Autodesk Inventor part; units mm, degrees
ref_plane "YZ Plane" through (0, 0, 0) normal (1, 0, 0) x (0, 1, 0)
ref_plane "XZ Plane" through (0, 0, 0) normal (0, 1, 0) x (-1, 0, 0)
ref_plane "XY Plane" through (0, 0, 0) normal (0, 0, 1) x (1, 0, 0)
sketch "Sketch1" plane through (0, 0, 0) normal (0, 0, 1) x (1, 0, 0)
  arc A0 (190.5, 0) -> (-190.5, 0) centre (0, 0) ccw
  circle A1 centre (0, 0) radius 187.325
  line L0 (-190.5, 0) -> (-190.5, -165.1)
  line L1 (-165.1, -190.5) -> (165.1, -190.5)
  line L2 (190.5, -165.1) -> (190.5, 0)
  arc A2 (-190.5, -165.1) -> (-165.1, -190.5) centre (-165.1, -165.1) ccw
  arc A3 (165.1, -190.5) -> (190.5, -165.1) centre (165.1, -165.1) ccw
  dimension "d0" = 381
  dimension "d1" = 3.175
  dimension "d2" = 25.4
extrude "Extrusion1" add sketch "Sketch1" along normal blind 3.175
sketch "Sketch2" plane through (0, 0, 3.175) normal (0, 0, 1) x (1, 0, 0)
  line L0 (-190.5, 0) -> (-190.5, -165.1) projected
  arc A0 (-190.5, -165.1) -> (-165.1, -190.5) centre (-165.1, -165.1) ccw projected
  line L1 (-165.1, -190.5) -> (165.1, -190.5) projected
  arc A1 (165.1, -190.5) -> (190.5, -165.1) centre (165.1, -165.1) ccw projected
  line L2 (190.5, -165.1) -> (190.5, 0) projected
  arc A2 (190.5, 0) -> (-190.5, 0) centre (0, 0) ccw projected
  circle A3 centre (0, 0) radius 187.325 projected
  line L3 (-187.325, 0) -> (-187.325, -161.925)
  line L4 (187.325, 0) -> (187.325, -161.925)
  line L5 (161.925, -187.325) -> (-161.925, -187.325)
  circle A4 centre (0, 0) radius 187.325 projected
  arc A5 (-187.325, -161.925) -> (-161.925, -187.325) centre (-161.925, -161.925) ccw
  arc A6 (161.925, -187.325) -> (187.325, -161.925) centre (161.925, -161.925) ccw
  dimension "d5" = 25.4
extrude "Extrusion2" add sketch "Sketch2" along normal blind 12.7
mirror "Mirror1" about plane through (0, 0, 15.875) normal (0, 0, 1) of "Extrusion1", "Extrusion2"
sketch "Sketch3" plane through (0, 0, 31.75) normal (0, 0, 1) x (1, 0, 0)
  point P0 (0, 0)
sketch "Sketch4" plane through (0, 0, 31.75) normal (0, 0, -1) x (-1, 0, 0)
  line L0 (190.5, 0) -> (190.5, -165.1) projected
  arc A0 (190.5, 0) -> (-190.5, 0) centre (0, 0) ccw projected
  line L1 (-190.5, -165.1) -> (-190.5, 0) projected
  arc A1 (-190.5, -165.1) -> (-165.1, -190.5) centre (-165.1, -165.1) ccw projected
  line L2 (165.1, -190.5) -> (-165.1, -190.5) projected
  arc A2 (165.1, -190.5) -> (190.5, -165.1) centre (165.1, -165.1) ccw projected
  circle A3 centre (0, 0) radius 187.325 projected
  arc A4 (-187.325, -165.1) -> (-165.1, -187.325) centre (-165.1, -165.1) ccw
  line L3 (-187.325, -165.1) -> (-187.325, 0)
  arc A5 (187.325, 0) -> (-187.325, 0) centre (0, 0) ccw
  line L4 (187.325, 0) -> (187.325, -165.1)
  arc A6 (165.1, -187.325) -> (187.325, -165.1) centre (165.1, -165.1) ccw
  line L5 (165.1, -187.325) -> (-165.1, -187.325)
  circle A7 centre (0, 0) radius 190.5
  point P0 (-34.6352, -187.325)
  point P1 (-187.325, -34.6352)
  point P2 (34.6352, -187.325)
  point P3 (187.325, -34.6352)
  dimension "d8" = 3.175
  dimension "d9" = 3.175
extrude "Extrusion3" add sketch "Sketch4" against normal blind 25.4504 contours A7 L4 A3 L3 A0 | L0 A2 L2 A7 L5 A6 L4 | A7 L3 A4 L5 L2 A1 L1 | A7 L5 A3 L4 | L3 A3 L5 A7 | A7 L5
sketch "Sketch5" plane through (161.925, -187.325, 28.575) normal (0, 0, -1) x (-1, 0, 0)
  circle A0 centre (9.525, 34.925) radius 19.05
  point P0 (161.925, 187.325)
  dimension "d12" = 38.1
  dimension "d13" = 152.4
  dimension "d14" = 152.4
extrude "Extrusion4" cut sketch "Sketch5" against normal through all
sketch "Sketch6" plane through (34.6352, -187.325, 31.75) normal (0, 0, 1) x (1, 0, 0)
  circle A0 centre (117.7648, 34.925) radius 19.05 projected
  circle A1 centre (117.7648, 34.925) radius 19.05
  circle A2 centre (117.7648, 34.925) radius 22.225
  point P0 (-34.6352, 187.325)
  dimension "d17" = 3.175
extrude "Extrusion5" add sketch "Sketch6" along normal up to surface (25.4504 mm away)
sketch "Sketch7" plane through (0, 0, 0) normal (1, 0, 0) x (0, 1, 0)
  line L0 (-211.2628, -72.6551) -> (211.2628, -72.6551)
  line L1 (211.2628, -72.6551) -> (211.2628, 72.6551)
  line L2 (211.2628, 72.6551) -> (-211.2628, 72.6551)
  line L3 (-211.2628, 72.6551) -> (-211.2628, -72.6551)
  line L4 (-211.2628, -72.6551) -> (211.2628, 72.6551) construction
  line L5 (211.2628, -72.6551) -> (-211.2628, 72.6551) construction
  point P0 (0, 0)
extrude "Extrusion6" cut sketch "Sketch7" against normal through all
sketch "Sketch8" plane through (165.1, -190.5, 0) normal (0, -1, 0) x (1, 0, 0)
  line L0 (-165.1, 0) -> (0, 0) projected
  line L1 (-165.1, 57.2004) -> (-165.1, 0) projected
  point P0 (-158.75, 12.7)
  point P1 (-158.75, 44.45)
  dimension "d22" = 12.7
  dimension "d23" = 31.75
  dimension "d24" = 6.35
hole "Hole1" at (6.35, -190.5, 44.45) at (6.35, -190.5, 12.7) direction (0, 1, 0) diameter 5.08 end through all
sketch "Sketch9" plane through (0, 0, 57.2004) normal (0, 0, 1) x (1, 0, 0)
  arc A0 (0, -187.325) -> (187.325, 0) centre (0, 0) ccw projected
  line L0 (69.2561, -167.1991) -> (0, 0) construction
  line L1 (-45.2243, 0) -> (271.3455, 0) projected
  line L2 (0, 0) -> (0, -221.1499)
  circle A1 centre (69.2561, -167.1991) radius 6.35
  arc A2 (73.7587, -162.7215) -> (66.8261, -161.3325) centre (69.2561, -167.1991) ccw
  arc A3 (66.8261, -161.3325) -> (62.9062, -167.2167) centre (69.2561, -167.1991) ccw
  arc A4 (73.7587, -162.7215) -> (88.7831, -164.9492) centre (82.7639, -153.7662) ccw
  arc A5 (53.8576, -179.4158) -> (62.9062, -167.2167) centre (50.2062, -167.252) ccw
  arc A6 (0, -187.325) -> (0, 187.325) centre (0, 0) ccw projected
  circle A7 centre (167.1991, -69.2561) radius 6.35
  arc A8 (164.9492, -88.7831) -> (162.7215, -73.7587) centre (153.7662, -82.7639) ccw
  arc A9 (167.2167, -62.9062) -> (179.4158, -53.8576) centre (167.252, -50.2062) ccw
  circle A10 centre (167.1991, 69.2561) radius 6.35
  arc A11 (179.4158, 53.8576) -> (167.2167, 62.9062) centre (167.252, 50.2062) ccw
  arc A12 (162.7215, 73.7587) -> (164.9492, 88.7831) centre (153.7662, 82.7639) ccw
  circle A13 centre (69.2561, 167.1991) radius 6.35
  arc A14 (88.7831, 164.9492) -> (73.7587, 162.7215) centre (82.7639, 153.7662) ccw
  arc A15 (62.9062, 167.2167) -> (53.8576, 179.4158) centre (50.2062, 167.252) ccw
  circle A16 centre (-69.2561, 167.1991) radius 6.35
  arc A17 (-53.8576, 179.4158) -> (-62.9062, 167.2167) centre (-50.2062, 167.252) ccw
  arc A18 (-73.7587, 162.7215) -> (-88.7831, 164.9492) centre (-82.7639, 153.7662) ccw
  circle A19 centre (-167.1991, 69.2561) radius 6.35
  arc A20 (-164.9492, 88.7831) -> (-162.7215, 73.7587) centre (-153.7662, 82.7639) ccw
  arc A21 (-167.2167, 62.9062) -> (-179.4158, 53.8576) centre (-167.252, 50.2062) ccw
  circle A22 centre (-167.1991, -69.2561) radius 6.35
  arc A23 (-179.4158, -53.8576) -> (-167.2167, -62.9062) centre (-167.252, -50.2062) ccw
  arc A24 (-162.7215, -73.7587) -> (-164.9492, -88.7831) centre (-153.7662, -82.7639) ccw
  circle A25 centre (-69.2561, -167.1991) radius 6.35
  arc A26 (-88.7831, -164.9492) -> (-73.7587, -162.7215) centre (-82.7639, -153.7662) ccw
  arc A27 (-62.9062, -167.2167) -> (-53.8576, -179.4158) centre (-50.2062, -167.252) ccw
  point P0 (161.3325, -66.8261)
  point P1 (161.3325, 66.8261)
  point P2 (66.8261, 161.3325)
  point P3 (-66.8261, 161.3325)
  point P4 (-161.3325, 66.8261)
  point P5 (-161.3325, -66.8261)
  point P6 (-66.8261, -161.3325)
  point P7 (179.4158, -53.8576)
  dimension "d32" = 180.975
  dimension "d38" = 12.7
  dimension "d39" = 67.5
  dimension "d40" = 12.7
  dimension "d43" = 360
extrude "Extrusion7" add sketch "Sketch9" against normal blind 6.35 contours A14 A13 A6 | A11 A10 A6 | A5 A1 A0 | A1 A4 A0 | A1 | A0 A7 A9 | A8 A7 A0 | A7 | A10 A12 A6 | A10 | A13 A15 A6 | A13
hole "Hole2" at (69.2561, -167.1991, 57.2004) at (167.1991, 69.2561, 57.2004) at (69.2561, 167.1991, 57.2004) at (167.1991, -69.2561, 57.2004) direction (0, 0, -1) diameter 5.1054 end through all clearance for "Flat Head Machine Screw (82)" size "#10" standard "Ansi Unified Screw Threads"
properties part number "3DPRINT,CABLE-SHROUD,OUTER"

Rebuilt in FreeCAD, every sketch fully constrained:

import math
import FreeCAD as App
import Part
import Sketcher

V = App.Vector
Q = App.Units.Quantity

doc = App.newDocument("Part")
body = doc.addObject("PartDesign::Body", "Body")

# Sketch on XY plane
sketch1 = body.newObject("Sketcher::SketchObject", "Sketch")
sketch1.AttachmentSupport = (doc.getObject("XY_Plane"), [""])
sketch1.MapMode = "FlatFace"
sketch1.addGeometry(Part.LineSegment(V(190, -165, 0), V(190, 0, 0)), False)
sketch1.addGeometry(Part.ArcOfCircle(Part.Circle(V(0, 0, 0), V(0, 0, 1), 190), math.radians(0), math.radians(180)), False)
sketch1.addGeometry(Part.LineSegment(V(-190, 0, 0), V(-190, -165, 0)), False)
sketch1.addGeometry(Part.ArcOfCircle(Part.Circle(V(-165, -165, 0), V(0, 0, 1), 25), math.radians(180), math.radians(270)), False)
sketch1.addGeometry(Part.LineSegment(V(-165, -190, 0), V(165, -190, 0)), False)
sketch1.addGeometry(Part.ArcOfCircle(Part.Circle(V(165, -165, 0), V(0, 0, 1), 25), math.radians(-90), math.radians(0)), False)
sketch1.addGeometry(Part.Circle(V(0, 0, 0), V(0, 0, 1), 187), False)
sketch1.addConstraint(Sketcher.Constraint("Tangent", 0, 2, 1, 1))
sketch1.addConstraint(Sketcher.Constraint("Tangent", 1, 2, 2, 1))
sketch1.addConstraint(Sketcher.Constraint("Tangent", 2, 2, 3, 1))
sketch1.addConstraint(Sketcher.Constraint("Tangent", 3, 2, 4, 1))
sketch1.addConstraint(Sketcher.Constraint("Tangent", 4, 2, 5, 1))
sketch1.addConstraint(Sketcher.Constraint("Tangent", 5, 2, 0, 1))
sketch1.addConstraint(Sketcher.Constraint("Vertical", 0))
sketch1.addConstraint(Sketcher.Constraint("Vertical", 2))
sketch1.addConstraint(Sketcher.Constraint("Horizontal", 4))
sketch1.addConstraint(Sketcher.Constraint("Coincident", 1, 3, -1, 1))
sketch1.addConstraint(Sketcher.Constraint("Coincident", 6, 3, -1, 1))
sketch1.addConstraint(Sketcher.Constraint("Equal", 3, 5))
sketch1.addConstraint(Sketcher.Constraint("Radius", 3, Q("1 in")))
sketch1.addConstraint(Sketcher.Constraint("Radius", 1, Q("7.5 in")))
sketch1.addConstraint(Sketcher.Constraint("Diameter", 6, Q("14.75 in")))
sketch1.addConstraint(Sketcher.Constraint("DistanceY", 0, 1, 0, 2, Q("6.5 in")))
pad1 = body.newObject("PartDesign::Pad", "Pad")
pad1.Profile = sketch1
pad1.Length = Q("0.125 in")

# Sketch on XY plane
sketch2 = body.newObject("Sketcher::SketchObject", "Sketch001")
sketch2.AttachmentSupport = (doc.getObject("XY_Plane"), [""])
sketch2.MapMode = "FlatFace"
sketch2.AttachmentOffset = App.Placement(V(0, 0, 0.125 * 25.4), App.Rotation())
sketch2.addGeometry(Part.ArcOfCircle(Part.Circle(V(0, 0, 0), V(0, 0, 1), 190), math.radians(0), math.radians(180)), False)
sketch2.addGeometry(Part.LineSegment(V(-190, 0, 0), V(-190, -165, 0)), False)
sketch2.addGeometry(Part.ArcOfCircle(Part.Circle(V(-165, -165, 0), V(0, 0, 1), 25), math.radians(180), math.radians(270)), False)
sketch2.addGeometry(Part.LineSegment(V(-165, -190, 0), V(165, -190, 0)), False)
sketch2.addGeometry(Part.ArcOfCircle(Part.Circle(V(165, -165, 0), V(0, 0, 1), 25), math.radians(-90), math.radians(0)), False)
sketch2.addGeometry(Part.LineSegment(V(190, -165, 0), V(190, 0, 0)), False)
sketch2.addGeometry(Part.ArcOfCircle(Part.Circle(V(0, 0, 0), V(0, 0, 1), 187), math.radians(0), math.radians(180)), False)
sketch2.addGeometry(Part.LineSegment(V(187, 0, 0), V(187, -162, 0)), False)
sketch2.addGeometry(Part.ArcOfCircle(Part.Circle(V(162, -162, 0), V(0, 0, 1), 25), math.radians(-90), math.radians(0)), False)
sketch2.addGeometry(Part.LineSegment(V(162, -187, 0), V(-162, -187, 0)), False)
sketch2.addGeometry(Part.ArcOfCircle(Part.Circle(V(-162, -162, 0), V(0, 0, 1), 25), math.radians(180), math.radians(270)), False)
sketch2.addGeometry(Part.LineSegment(V(-187, -162, 0), V(-187, 0, 0)), False)
sketch2.addConstraint(Sketcher.Constraint("Tangent", 0, 2, 1, 1))
sketch2.addConstraint(Sketcher.Constraint("Tangent", 1, 2, 2, 1))
sketch2.addConstraint(Sketcher.Constraint("Tangent", 2, 2, 3, 1))
sketch2.addConstraint(Sketcher.Constraint("Tangent", 3, 2, 4, 1))
sketch2.addConstraint(Sketcher.Constraint("Tangent", 4, 2, 5, 1))
sketch2.addConstraint(Sketcher.Constraint("Tangent", 5, 2, 0, 1))
sketch2.addConstraint(Sketcher.Constraint("Tangent", 6, 1, 7, 1))
sketch2.addConstraint(Sketcher.Constraint("Tangent", 7, 2, 8, 2))
sketch2.addConstraint(Sketcher.Constraint("Tangent", 8, 1, 9, 1))
sketch2.addConstraint(Sketcher.Constraint("Tangent", 9, 2, 10, 2))
sketch2.addConstraint(Sketcher.Constraint("Tangent", 10, 1, 11, 1))
sketch2.addConstraint(Sketcher.Constraint("Tangent", 11, 2, 6, 2))
sketch2.addConstraint(Sketcher.Constraint("Vertical", 1))
sketch2.addConstraint(Sketcher.Constraint("Horizontal", 3))
sketch2.addConstraint(Sketcher.Constraint("Vertical", 5))
sketch2.addConstraint(Sketcher.Constraint("Vertical", 7))
sketch2.addConstraint(Sketcher.Constraint("Horizontal", 9))
sketch2.addConstraint(Sketcher.Constraint("Vertical", 11))
sketch2.addConstraint(Sketcher.Constraint("Coincident", 0, 3, -1, 1))
sketch2.addConstraint(Sketcher.Constraint("Coincident", 6, 3, -1, 1))
sketch2.addConstraint(Sketcher.Constraint("Equal", 2, 4))
sketch2.addConstraint(Sketcher.Constraint("Equal", 4, 8))
sketch2.addConstraint(Sketcher.Constraint("Equal", 8, 10))
sketch2.addConstraint(Sketcher.Constraint("Radius", 2, Q("1 in")))
sketch2.addConstraint(Sketcher.Constraint("Radius", 0, Q("7.5 in")))
sketch2.addConstraint(Sketcher.Constraint("DistanceY", 1, 2, 1, 1, Q("6.5 in")))
sketch2.addConstraint(Sketcher.Constraint("Radius", 6, Q("7.375 in")))
sketch2.addConstraint(Sketcher.Constraint("DistanceY", 7, 2, 7, 1, Q("6.375 in")))
pad2 = body.newObject("PartDesign::Pad", "Pad001")
pad2.Profile = sketch2
pad2.Length = Q("0.5 in")
doc.recompute()

datumplane = body.newObject("PartDesign::Plane", "DatumPlane")
datumplane.AttachmentSupport = (doc.getObject("XY_Plane"), [""])
datumplane.MapMode = "FlatFace"
datumplane.AttachmentOffset = App.Placement(V(0, 0, 0.625 * 25.4), App.Rotation())
mirrored = body.newObject("PartDesign::Mirrored", "Mirrored")
mirrored.Originals = [pad1, pad2]
mirrored.MirrorPlane = (datumplane, [""])
body.Tip = mirrored

# Sketch on XY plane
sketch3 = body.newObject("Sketcher::SketchObject", "Sketch002")
sketch3.AttachmentSupport = (doc.getObject("XY_Plane"), [""])
sketch3.MapMode = "FlatFace"
sketch3.AttachmentOffset = App.Placement(V(0, 0, 1.25 * 25.4), App.Rotation())
sketch3.addGeometry(Part.ArcOfCircle(Part.Circle(V(0, 0, 0), V(0, 0, 1), 190), math.radians(0), math.radians(180)), False)
sketch3.addGeometry(Part.LineSegment(V(190, 0, 0), V(190, -165, 0)), False)
sketch3.addGeometry(Part.ArcOfCircle(Part.Circle(V(165, -165, 0), V(0, 0, 1), 25), math.radians(-90), math.radians(0)), False)
sketch3.addGeometry(Part.LineSegment(V(165, -190, 0), V(-165, -190, 0)), False)
sketch3.addGeometry(Part.ArcOfCircle(Part.Circle(V(-165, -165, 0), V(0, 0, 1), 25), math.radians(180), math.radians(270)), False)
sketch3.addGeometry(Part.LineSegment(V(-190, -165, 0), V(-190, 0, 0)), False)
sketch3.addGeometry(Part.Circle(V(0, 0, 0), V(0, 0, 1), 187), False)
sketch3.addGeometry(Part.LineSegment(V(-165, -187, 0), V(-35, -187, 0)), False)
sketch3.addGeometry(Part.ArcOfCircle(Part.Circle(V(0, 0, 0), V(0, 0, 1), 190), math.radians(-170), math.radians(-100)), False)
sketch3.addGeometry(Part.LineSegment(V(-187, -35, 0), V(-187, -165, 0)), False)
sketch3.addGeometry(Part.ArcOfCircle(Part.Circle(V(-165, -165, 0), V(0, 0, 1), 22), math.radians(180), math.radians(270)), False)
sketch3.addGeometry(Part.ArcOfCircle(Part.Circle(V(0, 0, 0), V(0, 0, 1), 190), math.radians(-80), math.radians(-10)), False)
sketch3.addGeometry(Part.LineSegment(V(35, -187, 0), V(165, -187, 0)), False)
sketch3.addGeometry(Part.ArcOfCircle(Part.Circle(V(165, -165, 0), V(0, 0, 1), 22), math.radians(-90), math.radians(0)), False)
sketch3.addGeometry(Part.LineSegment(V(187, -165, 0), V(187, -35, 0)), False)
sketch3.addConstraint(Sketcher.Constraint("Tangent", 0, 1, 1, 1))
sketch3.addConstraint(Sketcher.Constraint("Tangent", 1, 2, 2, 2))
sketch3.addConstraint(Sketcher.Constraint("Tangent", 2, 1, 3, 1))
sketch3.addConstraint(Sketcher.Constraint("Tangent", 3, 2, 4, 2))
sketch3.addConstraint(Sketcher.Constraint("Tangent", 4, 1, 5, 1))
sketch3.addConstraint(Sketcher.Constraint("Tangent", 5, 2, 0, 2))
sketch3.addConstraint(Sketcher.Constraint("Coincident", 7, 2, 8, 2))
sketch3.addConstraint(Sketcher.Constraint("Coincident", 8, 1, 9, 1))
sketch3.addConstraint(Sketcher.Constraint("Tangent", 9, 2, 10, 1))
sketch3.addConstraint(Sketcher.Constraint("Tangent", 10, 2, 7, 1))
sketch3.addConstraint(Sketcher.Constraint("Coincident", 11, 1, 12, 1))
sketch3.addConstraint(Sketcher.Constraint("Tangent", 12, 2, 13, 1))
sketch3.addConstraint(Sketcher.Constraint("Tangent", 13, 2, 14, 1))
sketch3.addConstraint(Sketcher.Constraint("Coincident", 14, 2, 11, 2))
sketch3.addConstraint(Sketcher.Constraint("Vertical", 1))
sketch3.addConstraint(Sketcher.Constraint("Horizontal", 3))
sketch3.addConstraint(Sketcher.Constraint("Vertical", 5))
sketch3.addConstraint(Sketcher.Constraint("Horizontal", 7))
sketch3.addConstraint(Sketcher.Constraint("Vertical", 9))
sketch3.addConstraint(Sketcher.Constraint("Horizontal", 12))
sketch3.addConstraint(Sketcher.Constraint("Vertical", 14))
sketch3.addConstraint(Sketcher.Constraint("Coincident", 0, 3, -1, 1))
sketch3.addConstraint(Sketcher.Constraint("Coincident", 6, 3, -1, 1))
sketch3.addConstraint(Sketcher.Constraint("Coincident", 8, 3, -1, 1))
sketch3.addConstraint(Sketcher.Constraint("Coincident", 11, 3, -1, 1))
sketch3.addConstraint(Sketcher.Constraint("Coincident", 10, 3, 4, 3))
sketch3.addConstraint(Sketcher.Constraint("Coincident", 13, 3, 2, 3))
sketch3.addConstraint(Sketcher.Constraint("Equal", 2, 4))
sketch3.addConstraint(Sketcher.Constraint("Equal", 0, 8))
sketch3.addConstraint(Sketcher.Constraint("Equal", 8, 11))
sketch3.addConstraint(Sketcher.Constraint("Equal", 10, 13))
sketch3.addConstraint(Sketcher.Constraint("Equal", 12, 9))
sketch3.addConstraint(Sketcher.Constraint("Radius", 2, Q("1 in")))
sketch3.addConstraint(Sketcher.Constraint("Radius", 0, Q("7.5 in")))
sketch3.addConstraint(Sketcher.Constraint("Diameter", 6, Q("14.75 in")))
sketch3.addConstraint(Sketcher.Constraint("Radius", 10, Q("0.875 in")))
pad3 = body.newObject("PartDesign::Pad", "Pad002")
pad3.Profile = sketch3
pad3.Length = 25.4504

# Sketch on XY plane
sketch4 = body.newObject("Sketcher::SketchObject", "Sketch003")
sketch4.AttachmentSupport = (doc.getObject("XY_Plane"), [""])
sketch4.MapMode = "FlatFace"
sketch4.AttachmentOffset = App.Placement(V(0, 0, 1.125 * 25.4), App.Rotation())
sketch4.addGeometry(Part.Circle(V(152, -152, 0), V(0, 0, 1), 19), False)
sketch4.addConstraint(Sketcher.Constraint("Diameter", 0, Q("1.5 in")))
sketch4.addConstraint(Sketcher.Constraint("DistanceX", -1, 1, 0, 3, Q("6 in")))
sketch4.addConstraint(Sketcher.Constraint("DistanceY", 0, 3, -1, 1, Q("6 in")))
pocket1 = body.newObject("PartDesign::Pocket", "Pocket")
pocket1.Profile = sketch4
pocket1.Type = "ThroughAll"
pocket1.Reversed = True

# Sketch on XY plane
sketch5 = body.newObject("Sketcher::SketchObject", "Sketch004")
sketch5.AttachmentSupport = (doc.getObject("XY_Plane"), [""])
sketch5.MapMode = "FlatFace"
sketch5.AttachmentOffset = App.Placement(V(0, 0, 1.25 * 25.4), App.Rotation())
sketch5.addGeometry(Part.Circle(V(152, -152, 0), V(0, 0, 1), 22), False)
sketch5.addGeometry(Part.Circle(V(152, -152, 0), V(0, 0, 1), 19), False)
sketch5.addConstraint(Sketcher.Constraint("Coincident", 1, 3, 0, 3))
sketch5.addConstraint(Sketcher.Constraint("Diameter", 1, Q("1.5 in")))
sketch5.addConstraint(Sketcher.Constraint("Diameter", 0, Q("1.75 in")))
sketch5.addConstraint(Sketcher.Constraint("DistanceX", -1, 1, 0, 3, Q("6 in")))
sketch5.addConstraint(Sketcher.Constraint("DistanceY", 0, 3, -1, 1, Q("6 in")))
pad4 = body.newObject("PartDesign::Pad", "Pad003")
pad4.Profile = sketch5
pad4.Length = 25.4504

# Sketch on YZ plane
sketch6 = body.newObject("Sketcher::SketchObject", "Sketch005")
sketch6.AttachmentSupport = (doc.getObject("YZ_Plane"), [""])
sketch6.MapMode = "FlatFace"
sketch6.addGeometry(Part.LineSegment(V(-211, 73, 0), V(-211, -73, 0)), False)
sketch6.addGeometry(Part.LineSegment(V(-211, -73, 0), V(211, -73, 0)), False)
sketch6.addGeometry(Part.LineSegment(V(211, -73, 0), V(211, 73, 0)), False)
sketch6.addGeometry(Part.LineSegment(V(211, 73, 0), V(-211, 73, 0)), False)
sketch6.addConstraint(Sketcher.Constraint("Coincident", 0, 2, 1, 1))
sketch6.addConstraint(Sketcher.Constraint("Coincident", 1, 2, 2, 1))
sketch6.addConstraint(Sketcher.Constraint("Coincident", 2, 2, 3, 1))
sketch6.addConstraint(Sketcher.Constraint("Coincident", 3, 2, 0, 1))
sketch6.addConstraint(Sketcher.Constraint("Vertical", 0))
sketch6.addConstraint(Sketcher.Constraint("Horizontal", 1))
sketch6.addConstraint(Sketcher.Constraint("Vertical", 2))
sketch6.addConstraint(Sketcher.Constraint("Horizontal", 3))
sketch6.addConstraint(Sketcher.Constraint("Symmetric", 0, 2, 2, 2, -1, 1))
sketch6.addConstraint(Sketcher.Constraint("DistanceX", 1, 1, 1, 2, Q("422.5256 mm")))
sketch6.addConstraint(Sketcher.Constraint("DistanceY", 0, 2, 0, 1, Q("145.3102 mm")))
pocket2 = body.newObject("PartDesign::Pocket", "Pocket001")
pocket2.Profile = sketch6
pocket2.Type = "ThroughAll"

# Sketch on XZ plane
sketch7 = body.newObject("Sketcher::SketchObject", "Sketch006")
sketch7.AttachmentSupport = (doc.getObject("XZ_Plane"), [""])
sketch7.MapMode = "FlatFace"
sketch7.AttachmentOffset = App.Placement(V(0, 0, 7.5 * 25.4), App.Rotation())
sketch7.addGeometry(Part.Circle(V(6.3, 44.5, 0), V(0, 0, 1), 2.5), False)
sketch7.addGeometry(Part.Circle(V(6.3, 12.7, 0), V(0, 0, 1), 2.5), False)
sketch7.addConstraint(Sketcher.Constraint("Equal", 0, 1))
sketch7.addConstraint(Sketcher.Constraint("Vertical", 0, 3, 1, 3))
sketch7.addConstraint(Sketcher.Constraint("Diameter", 0, Q("0.2 in")))
sketch7.addConstraint(Sketcher.Constraint("DistanceY", -1, 1, 1, 3, Q("0.5 in")))
sketch7.addConstraint(Sketcher.Constraint("DistanceX", -1, 1, 0, 3, Q("0.25 in")))
sketch7.addConstraint(Sketcher.Constraint("DistanceY", -1, 1, 0, 3, Q("1.75 in")))
doc.recompute()
hole = body.newObject("PartDesign::Hole", "Hole")
hole.Profile = sketch7
hole.ThreadType = "None"
hole.Diameter = Q("0.2 in")
hole.DepthType = "ThroughAll"

# Sketch on XY plane
sketch8 = body.newObject("Sketcher::SketchObject", "Sketch007")
sketch8.AttachmentSupport = (doc.getObject("XY_Plane"), [""])
sketch8.MapMode = "FlatFace"
sketch8.AttachmentOffset = App.Placement(V(0, 0, 57.2004), App.Rotation())
sketch8.addGeometry(Part.ArcOfCircle(Part.Circle(V(83, 154, 0), V(0, 0, 1), 13), math.radians(62), math.radians(135)), False)
sketch8.addGeometry(Part.ArcOfCircle(Part.Circle(V(0, 0, 0), V(0, 0, 1), 187), math.radians(61.71), math.radians(73.29)), False)
sketch8.addGeometry(Part.ArcOfCircle(Part.Circle(V(50, 167, 0), V(0, 0, 1), 13), math.radians(0), math.radians(73)), False)
sketch8.addGeometry(Part.ArcOfCircle(Part.Circle(V(69, 167, 0), V(0, 0, 1), 6), math.radians(180), math.radians(315)), False)
sketch8.addGeometry(Part.ArcOfCircle(Part.Circle(V(167, 50, 0), V(0, 0, 1), 13), math.radians(17), math.radians(90)), False)
sketch8.addGeometry(Part.ArcOfCircle(Part.Circle(V(0, 0, 0), V(0, 0, 1), 187), math.radians(16.71), math.radians(28.29)), False)
sketch8.addGeometry(Part.ArcOfCircle(Part.Circle(V(154, 83, 0), V(0, 0, 1), 13), math.radians(-45), math.radians(28)), False)
sketch8.addGeometry(Part.ArcOfCircle(Part.Circle(V(167, 69, 0), V(0, 0, 1), 6), math.radians(135), math.radians(270)), False)
sketch8.addGeometry(Part.ArcOfCircle(Part.Circle(V(50, -167, 0), V(0, 0, 1), 13), math.radians(-73), math.radians(0)), False)
sketch8.addGeometry(Part.ArcOfCircle(Part.Circle(V(0, 0, 0), V(0, 0, 1), 187), math.radians(-73.29), math.radians(-61.71)), False)
sketch8.addGeometry(Part.ArcOfCircle(Part.Circle(V(83, -154, 0), V(0, 0, 1), 13), math.radians(-135), math.radians(-62)), False)
sketch8.addGeometry(Part.ArcOfCircle(Part.Circle(V(69, -167, 0), V(0, 0, 1), 6), math.radians(45), math.radians(180)), False)
sketch8.addGeometry(Part.ArcOfCircle(Part.Circle(V(167, -50, 0), V(0, 0, 1), 13), math.radians(-90), math.radians(-17)), False)
sketch8.addGeometry(Part.ArcOfCircle(Part.Circle(V(167, -69, 0), V(0, 0, 1), 6), math.radians(90), math.radians(225)), False)
sketch8.addGeometry(Part.ArcOfCircle(Part.Circle(V(154, -83, 0), V(0, 0, 1), 13), math.radians(-28), math.radians(45)), False)
sketch8.addGeometry(Part.ArcOfCircle(Part.Circle(V(0, 0, 0), V(0, 0, 1), 187), math.radians(-28.29), math.radians(-16.71)), False)
sketch8.addConstraint(Sketcher.Constraint("Tangent", 0, 1, 1, 1))
sketch8.addConstraint(Sketcher.Constraint("Tangent", 1, 2, 2, 2))
sketch8.addConstraint(Sketcher.Constraint("Tangent", 2, 1, 3, 1))
sketch8.addConstraint(Sketcher.Constraint("Tangent", 3, 2, 0, 2))
sketch8.addConstraint(Sketcher.Constraint("Tangent", 4, 1, 5, 1))
sketch8.addConstraint(Sketcher.Constraint("Tangent", 5, 2, 6, 2))
sketch8.addConstraint(Sketcher.Constraint("Tangent", 6, 1, 7, 1))
sketch8.addConstraint(Sketcher.Constraint("Tangent", 7, 2, 4, 2))
sketch8.addConstraint(Sketcher.Constraint("Tangent", 8, 1, 9, 1))
sketch8.addConstraint(Sketcher.Constraint("Tangent", 9, 2, 10, 2))
sketch8.addConstraint(Sketcher.Constraint("Tangent", 10, 1, 11, 1))
sketch8.addConstraint(Sketcher.Constraint("Tangent", 11, 2, 8, 2))
sketch8.addConstraint(Sketcher.Constraint("Tangent", 12, 1, 13, 1))
sketch8.addConstraint(Sketcher.Constraint("Tangent", 13, 2, 14, 2))
sketch8.addConstraint(Sketcher.Constraint("Tangent", 14, 1, 15, 1))
sketch8.addConstraint(Sketcher.Constraint("Tangent", 15, 2, 12, 2))
sketch8.addConstraint(Sketcher.Constraint("Coincident", 1, 3, -1, 1))
sketch8.addConstraint(Sketcher.Constraint("Coincident", 5, 3, -1, 1))
sketch8.addConstraint(Sketcher.Constraint("Coincident", 9, 3, -1, 1))
sketch8.addConstraint(Sketcher.Constraint("Coincident", 15, 3, -1, 1))
sketch8.addConstraint(Sketcher.Constraint("Equal", 0, 2))
sketch8.addConstraint(Sketcher.Constraint("Equal", 2, 4))
sketch8.addConstraint(Sketcher.Constraint("Equal", 1, 5))
sketch8.addConstraint(Sketcher.Constraint("Equal", 4, 6))
sketch8.addConstraint(Sketcher.Constraint("Equal", 3, 7))
sketch8.addConstraint(Sketcher.Constraint("Equal", 6, 8))
sketch8.addConstraint(Sketcher.Constraint("Equal", 5, 9))
sketch8.addConstraint(Sketcher.Constraint("Equal", 8, 10))
sketch8.addConstraint(Sketcher.Constraint("Equal", 7, 11))
sketch8.addConstraint(Sketcher.Constraint("Equal", 10, 12))
sketch8.addConstraint(Sketcher.Constraint("Equal", 11, 13))
sketch8.addConstraint(Sketcher.Constraint("Equal", 12, 14))
sketch8.addConstraint(Sketcher.Constraint("Equal", 9, 15))
sketch8.addConstraint(Sketcher.Constraint("Symmetric", 3, 3, 11, 3, -1))
sketch8.addConstraint(Sketcher.Constraint("Symmetric", 7, 3, 13, 3, -1))
sketch8.addConstraint(Sketcher.Constraint("Radius", 0, Q("0.5 in")))
sketch8.addConstraint(Sketcher.Constraint("Radius", 3, Q("0.25 in")))
sketch8.addConstraint(Sketcher.Constraint("Radius", 1, Q("7.375 in")))
sketch8.addConstraint(Sketcher.Constraint("DistanceY", 12, 3, 4, 1, Q("4.097 in")))
sketch8.addConstraint(Sketcher.Constraint("DistanceY", 8, 1, 13, 3, Q("4.337 in")))
sketch8.addConstraint(Sketcher.Constraint("DistanceX", -1, 1, 0, 1, Q("3.4954 in")))
sketch8.addConstraint(Sketcher.Constraint("DistanceY", -1, 1, 5, 2, Q("3.4954 in")))
pad5 = body.newObject("PartDesign::Pad", "Pad004")
pad5.Profile = sketch8
pad5.Length = Q("0.25 in")
pad5.Reversed = True

# Sketch on XY plane
sketch9 = body.newObject("Sketcher::SketchObject", "Sketch008")
sketch9.AttachmentSupport = (doc.getObject("XY_Plane"), [""])
sketch9.MapMode = "FlatFace"
sketch9.AttachmentOffset = App.Placement(V(0, 0, 57.2004), App.Rotation())
sketch9.addGeometry(Part.Circle(V(69.3, -167.2, 0), V(0, 0, 1), 2.6), False)
sketch9.addGeometry(Part.Circle(V(167.2, 69.3, 0), V(0, 0, 1), 2.6), False)
sketch9.addGeometry(Part.Circle(V(69.3, 167.2, 0), V(0, 0, 1), 2.6), False)
sketch9.addGeometry(Part.Circle(V(167.2, -69.3, 0), V(0, 0, 1), 2.6), False)
sketch9.addConstraint(Sketcher.Constraint("Equal", 0, 1))
sketch9.addConstraint(Sketcher.Constraint("Equal", 1, 2))
sketch9.addConstraint(Sketcher.Constraint("Equal", 2, 3))
sketch9.addConstraint(Sketcher.Constraint("Symmetric", 0, 3, 2, 3, -1))
sketch9.addConstraint(Sketcher.Constraint("Symmetric", 1, 3, 3, 3, -1))
sketch9.addConstraint(Sketcher.Constraint("Diameter", 0, Q("0.201 in")))
sketch9.addConstraint(Sketcher.Constraint("DistanceX", -1, 1, 0, 3, Q("69.256 mm")))
sketch9.addConstraint(Sketcher.Constraint("DistanceY", 0, 3, -1, 1, Q("167.199 mm")))
sketch9.addConstraint(Sketcher.Constraint("DistanceX", -1, 1, 1, 3, Q("167.199 mm")))
sketch9.addConstraint(Sketcher.Constraint("DistanceY", -1, 1, 1, 3, Q("69.256 mm")))
doc.recompute()
hole2 = body.newObject("PartDesign::Hole", "Hole001")
hole2.Profile = sketch9
hole2.ThreadType = "None"
hole2.Diameter = Q("0.201 in")
hole2.DepthType = "ThroughAll"

doc.recompute()
